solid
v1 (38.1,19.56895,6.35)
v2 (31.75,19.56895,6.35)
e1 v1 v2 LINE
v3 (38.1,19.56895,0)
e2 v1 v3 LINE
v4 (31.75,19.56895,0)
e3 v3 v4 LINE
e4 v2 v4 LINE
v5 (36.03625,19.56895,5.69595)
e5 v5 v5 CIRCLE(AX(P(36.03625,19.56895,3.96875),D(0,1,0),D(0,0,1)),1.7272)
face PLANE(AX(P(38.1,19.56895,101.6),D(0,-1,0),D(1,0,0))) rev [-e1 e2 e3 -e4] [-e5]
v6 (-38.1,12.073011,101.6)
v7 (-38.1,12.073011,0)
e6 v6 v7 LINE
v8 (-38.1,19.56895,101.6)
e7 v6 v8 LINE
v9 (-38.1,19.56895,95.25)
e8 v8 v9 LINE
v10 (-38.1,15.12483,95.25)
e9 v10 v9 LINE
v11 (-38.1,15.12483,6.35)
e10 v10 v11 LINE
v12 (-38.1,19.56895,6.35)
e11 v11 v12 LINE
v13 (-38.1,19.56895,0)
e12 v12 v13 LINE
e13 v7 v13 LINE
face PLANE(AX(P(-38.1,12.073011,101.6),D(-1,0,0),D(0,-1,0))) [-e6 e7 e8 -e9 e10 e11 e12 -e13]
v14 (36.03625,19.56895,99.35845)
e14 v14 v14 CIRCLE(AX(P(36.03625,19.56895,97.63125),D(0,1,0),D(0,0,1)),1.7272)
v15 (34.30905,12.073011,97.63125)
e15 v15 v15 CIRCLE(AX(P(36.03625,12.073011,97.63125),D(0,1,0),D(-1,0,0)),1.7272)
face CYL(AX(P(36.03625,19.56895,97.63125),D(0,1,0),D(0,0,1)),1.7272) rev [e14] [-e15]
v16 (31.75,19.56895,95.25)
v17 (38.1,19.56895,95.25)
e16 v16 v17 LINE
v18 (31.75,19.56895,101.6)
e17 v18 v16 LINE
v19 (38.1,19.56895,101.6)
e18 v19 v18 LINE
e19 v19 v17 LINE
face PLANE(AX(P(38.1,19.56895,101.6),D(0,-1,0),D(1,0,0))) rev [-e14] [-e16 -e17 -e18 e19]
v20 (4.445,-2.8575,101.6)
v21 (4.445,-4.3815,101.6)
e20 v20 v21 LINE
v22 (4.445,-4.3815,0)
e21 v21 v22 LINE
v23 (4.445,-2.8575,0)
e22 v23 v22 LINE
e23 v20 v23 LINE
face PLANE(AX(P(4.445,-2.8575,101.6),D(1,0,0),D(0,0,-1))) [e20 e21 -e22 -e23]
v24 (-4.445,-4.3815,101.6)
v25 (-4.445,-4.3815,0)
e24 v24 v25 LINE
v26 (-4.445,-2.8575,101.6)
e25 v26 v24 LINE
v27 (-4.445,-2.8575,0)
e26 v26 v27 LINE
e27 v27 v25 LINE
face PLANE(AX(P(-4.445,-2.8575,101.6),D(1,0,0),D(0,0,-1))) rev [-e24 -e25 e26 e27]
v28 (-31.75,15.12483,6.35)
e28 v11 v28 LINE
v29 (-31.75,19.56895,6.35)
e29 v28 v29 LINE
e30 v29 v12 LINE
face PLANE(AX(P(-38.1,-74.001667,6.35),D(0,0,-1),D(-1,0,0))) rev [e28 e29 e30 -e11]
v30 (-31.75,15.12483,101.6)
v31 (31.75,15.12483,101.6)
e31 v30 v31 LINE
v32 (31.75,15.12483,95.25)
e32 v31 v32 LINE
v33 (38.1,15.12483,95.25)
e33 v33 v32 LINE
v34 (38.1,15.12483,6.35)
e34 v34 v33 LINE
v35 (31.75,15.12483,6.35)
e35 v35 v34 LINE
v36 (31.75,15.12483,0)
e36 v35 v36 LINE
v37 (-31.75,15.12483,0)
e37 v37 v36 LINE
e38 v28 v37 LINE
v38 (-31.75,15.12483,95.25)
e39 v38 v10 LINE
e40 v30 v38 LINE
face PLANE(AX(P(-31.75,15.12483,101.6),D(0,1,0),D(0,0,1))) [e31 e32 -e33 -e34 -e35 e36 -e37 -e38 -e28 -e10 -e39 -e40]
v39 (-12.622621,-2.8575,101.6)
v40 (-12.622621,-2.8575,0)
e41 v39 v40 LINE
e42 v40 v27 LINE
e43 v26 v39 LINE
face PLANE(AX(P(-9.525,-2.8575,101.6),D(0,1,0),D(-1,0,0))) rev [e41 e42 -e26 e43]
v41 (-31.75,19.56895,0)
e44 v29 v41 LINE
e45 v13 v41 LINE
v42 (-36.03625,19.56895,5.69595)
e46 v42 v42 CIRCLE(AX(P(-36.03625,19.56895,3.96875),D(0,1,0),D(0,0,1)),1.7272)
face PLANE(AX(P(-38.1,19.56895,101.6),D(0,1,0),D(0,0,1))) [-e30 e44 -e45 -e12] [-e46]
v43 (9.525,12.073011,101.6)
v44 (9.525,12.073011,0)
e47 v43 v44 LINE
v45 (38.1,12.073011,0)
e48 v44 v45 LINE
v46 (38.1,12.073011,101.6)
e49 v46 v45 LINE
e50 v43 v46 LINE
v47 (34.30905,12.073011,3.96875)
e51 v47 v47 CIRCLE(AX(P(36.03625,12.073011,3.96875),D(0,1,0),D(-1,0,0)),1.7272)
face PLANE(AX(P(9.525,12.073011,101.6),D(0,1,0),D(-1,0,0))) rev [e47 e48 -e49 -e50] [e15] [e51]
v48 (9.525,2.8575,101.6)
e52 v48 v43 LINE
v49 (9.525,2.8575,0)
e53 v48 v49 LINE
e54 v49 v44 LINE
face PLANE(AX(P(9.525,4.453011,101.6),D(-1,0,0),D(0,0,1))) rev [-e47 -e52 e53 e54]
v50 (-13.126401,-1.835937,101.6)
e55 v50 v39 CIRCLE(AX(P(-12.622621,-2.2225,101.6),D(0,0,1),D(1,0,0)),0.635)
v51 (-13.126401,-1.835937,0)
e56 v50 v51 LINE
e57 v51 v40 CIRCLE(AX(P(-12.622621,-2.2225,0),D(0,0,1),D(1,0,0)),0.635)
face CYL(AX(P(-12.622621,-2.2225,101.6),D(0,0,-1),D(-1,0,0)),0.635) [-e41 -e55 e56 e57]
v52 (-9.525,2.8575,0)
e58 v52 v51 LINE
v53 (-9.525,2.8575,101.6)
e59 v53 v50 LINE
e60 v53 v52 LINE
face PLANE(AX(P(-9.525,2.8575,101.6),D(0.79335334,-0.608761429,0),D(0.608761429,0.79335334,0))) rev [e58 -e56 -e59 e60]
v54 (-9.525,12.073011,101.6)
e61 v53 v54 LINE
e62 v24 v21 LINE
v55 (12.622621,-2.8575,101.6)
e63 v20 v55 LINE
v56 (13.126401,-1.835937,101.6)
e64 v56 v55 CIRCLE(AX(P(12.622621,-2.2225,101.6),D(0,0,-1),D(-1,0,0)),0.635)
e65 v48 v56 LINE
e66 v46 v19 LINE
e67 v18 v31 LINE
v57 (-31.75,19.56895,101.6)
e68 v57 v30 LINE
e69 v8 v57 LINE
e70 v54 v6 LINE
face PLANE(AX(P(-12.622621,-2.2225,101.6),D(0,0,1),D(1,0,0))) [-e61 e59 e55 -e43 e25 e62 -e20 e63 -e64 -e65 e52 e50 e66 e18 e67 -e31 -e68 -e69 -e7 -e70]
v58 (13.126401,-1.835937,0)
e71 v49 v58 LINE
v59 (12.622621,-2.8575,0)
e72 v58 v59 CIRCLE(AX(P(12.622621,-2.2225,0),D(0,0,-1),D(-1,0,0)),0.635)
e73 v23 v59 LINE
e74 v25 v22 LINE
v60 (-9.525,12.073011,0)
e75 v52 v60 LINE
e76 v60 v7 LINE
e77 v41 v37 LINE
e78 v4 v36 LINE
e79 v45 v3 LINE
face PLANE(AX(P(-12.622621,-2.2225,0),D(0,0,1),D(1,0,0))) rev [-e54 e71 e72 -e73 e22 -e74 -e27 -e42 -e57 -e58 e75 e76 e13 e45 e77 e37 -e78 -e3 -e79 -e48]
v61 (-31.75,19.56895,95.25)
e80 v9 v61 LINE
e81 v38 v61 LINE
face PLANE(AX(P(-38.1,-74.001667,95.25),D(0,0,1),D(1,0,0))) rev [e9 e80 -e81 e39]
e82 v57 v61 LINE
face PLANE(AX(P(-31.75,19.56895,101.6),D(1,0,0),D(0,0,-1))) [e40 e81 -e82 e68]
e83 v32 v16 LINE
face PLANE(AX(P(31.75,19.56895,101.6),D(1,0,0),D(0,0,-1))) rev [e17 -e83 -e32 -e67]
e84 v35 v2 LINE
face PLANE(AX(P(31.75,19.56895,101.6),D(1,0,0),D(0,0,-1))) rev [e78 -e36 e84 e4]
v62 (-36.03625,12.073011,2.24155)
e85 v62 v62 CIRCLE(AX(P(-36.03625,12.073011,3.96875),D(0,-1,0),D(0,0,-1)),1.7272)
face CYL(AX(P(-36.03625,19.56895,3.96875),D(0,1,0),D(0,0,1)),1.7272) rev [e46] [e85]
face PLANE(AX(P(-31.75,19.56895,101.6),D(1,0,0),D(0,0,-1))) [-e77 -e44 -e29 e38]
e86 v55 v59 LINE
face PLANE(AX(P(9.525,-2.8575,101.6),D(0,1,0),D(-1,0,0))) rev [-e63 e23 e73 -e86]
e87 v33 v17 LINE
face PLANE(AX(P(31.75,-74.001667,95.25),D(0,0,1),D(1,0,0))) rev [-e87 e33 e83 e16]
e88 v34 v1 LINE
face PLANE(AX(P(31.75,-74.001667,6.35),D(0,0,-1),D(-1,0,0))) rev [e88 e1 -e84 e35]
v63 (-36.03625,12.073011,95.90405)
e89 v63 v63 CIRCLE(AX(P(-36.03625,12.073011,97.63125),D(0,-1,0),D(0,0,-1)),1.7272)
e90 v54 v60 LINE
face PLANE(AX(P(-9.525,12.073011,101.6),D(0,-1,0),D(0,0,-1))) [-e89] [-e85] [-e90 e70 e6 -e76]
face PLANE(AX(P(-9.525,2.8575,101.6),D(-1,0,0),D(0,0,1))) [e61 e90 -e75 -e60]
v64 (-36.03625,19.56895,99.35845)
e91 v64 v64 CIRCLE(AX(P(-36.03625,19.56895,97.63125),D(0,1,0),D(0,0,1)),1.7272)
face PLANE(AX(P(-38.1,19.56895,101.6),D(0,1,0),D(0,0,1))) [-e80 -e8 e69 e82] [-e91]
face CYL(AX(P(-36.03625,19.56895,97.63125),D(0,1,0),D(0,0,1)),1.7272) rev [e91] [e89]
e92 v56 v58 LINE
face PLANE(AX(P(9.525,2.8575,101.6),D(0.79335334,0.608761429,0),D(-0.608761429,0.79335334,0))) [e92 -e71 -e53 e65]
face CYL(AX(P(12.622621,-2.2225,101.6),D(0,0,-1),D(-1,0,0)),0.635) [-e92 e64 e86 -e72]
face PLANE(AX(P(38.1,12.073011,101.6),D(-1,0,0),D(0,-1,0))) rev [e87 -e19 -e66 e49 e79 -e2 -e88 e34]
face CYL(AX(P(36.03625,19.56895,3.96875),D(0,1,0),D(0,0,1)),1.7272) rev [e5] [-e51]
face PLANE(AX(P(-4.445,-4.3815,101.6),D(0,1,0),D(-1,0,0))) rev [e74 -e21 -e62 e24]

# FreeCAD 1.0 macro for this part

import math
import FreeCAD as App
import Part
import Sketcher
from FreeCAD import Vector
Q = App.Units.Quantity

doc = App.newDocument("Part")
params = doc.addObject("Spreadsheet::Sheet", "Params")
for row, (alias, value) in enumerate([
    ("sketch1_width", "2.5 in"),
    ("sketch1_radius", "0.025 in"),
    ("sketch1_width2", "0.35 in"),
    ("sketch1_width3", "0.25 in"),
    ("sketch1_height", "0.06 in"),
    ("pad1_length", "4 in"),
    ("sketch2_height", "3.5 in"),
    ("sketch2_width", "0.25 in"),
    ("pocket1_length", "4.44412 mm"),
    ("sketch3_height", "3.5 in"),
    ("sketch3_width", "0.25 in"),
    ("pocket2_length", "4.44412 mm"),
    ("sketch4_diameter", "0.136 in"),
    ("hole_diameter", "0.136 in"),
    ("sketch5_diameter", "0.136 in"),
    ("hole2_diameter", "0.136 in"),
    ("sketch6_diameter", "0.136 in"),
    ("hole3_diameter", "0.136 in"),
    ("sketch7_diameter", "0.136 in"),
    ("hole4_diameter", "0.136 in"),
], start=1):
    params.set(f"A{row}", alias)
    params.set(f"B{row}", "=" + value)
    params.setAlias(f"B{row}", alias)

body = doc.addObject("PartDesign::Body", "Body")

# Sketch on XY plane
sketch1 = body.newObject("Sketcher::SketchObject", "Sketch")
sketch1.AttachmentSupport = (doc.getObject("XY_Plane"), [""])
sketch1.MapMode = "FlatFace"
sketch1.addGeometry(Part.LineSegment(Vector(-9.525, 12.073011, 0), Vector(-9.525, 2.8575, 0)), False)
sketch1.addGeometry(Part.LineSegment(Vector(-9.525, 2.8575, 0), Vector(-13.126401, -1.835937, 0)), False)
sketch1.addGeometry(Part.ArcOfCircle(Part.Circle(Vector(-12.622621, -2.2225, 0), Vector(0, 0, 1), 0.635), math.radians(142.500004), math.radians(269.999994)), False)
sketch1.addGeometry(Part.LineSegment(Vector(-12.622621, -2.8575, 0), Vector(-4.445, -2.8575, 0)), False)
sketch1.addGeometry(Part.LineSegment(Vector(-4.445, -2.8575, 0), Vector(-4.445, -4.3815, 0)), False)
sketch1.addGeometry(Part.LineSegment(Vector(-4.445, -4.3815, 0), Vector(4.445, -4.3815, 0)), False)
sketch1.addGeometry(Part.LineSegment(Vector(4.445, -4.3815, 0), Vector(4.445, -2.8575, 0)), False)
sketch1.addGeometry(Part.LineSegment(Vector(4.445, -2.8575, 0), Vector(12.622621, -2.8575, 0)), False)
sketch1.addGeometry(Part.ArcOfCircle(Part.Circle(Vector(12.622621, -2.2225, 0), Vector(0, 0, 1), 0.635), math.radians(-89.999994), math.radians(37.499996)), False)
sketch1.addGeometry(Part.LineSegment(Vector(13.126401, -1.835937, 0), Vector(9.525, 2.8575, 0)), False)
sketch1.addGeometry(Part.LineSegment(Vector(9.525, 2.8575, 0), Vector(9.525, 12.073011, 0)), False)
sketch1.addGeometry(Part.LineSegment(Vector(9.525, 12.073011, 0), Vector(38.1, 12.073011, 0)), False)
sketch1.addGeometry(Part.LineSegment(Vector(38.1, 12.073011, 0), Vector(38.1, 19.56895, 0)), False)
sketch1.addGeometry(Part.LineSegment(Vector(38.1, 19.56895, 0), Vector(31.75, 19.56895, 0)), False)
sketch1.addGeometry(Part.LineSegment(Vector(31.75, 19.56895, 0), Vector(31.75, 15.12483, 0)), False)
sketch1.addGeometry(Part.LineSegment(Vector(31.75, 15.12483, 0), Vector(-31.75, 15.12483, 0)), False)
sketch1.addGeometry(Part.LineSegment(Vector(-31.75, 15.12483, 0), Vector(-31.75, 19.56895, 0)), False)
sketch1.addGeometry(Part.LineSegment(Vector(-31.75, 19.56895, 0), Vector(-38.1, 19.56895, 0)), False)
sketch1.addGeometry(Part.LineSegment(Vector(-38.1, 19.56895, 0), Vector(-38.1, 12.073011, 0)), False)
sketch1.addGeometry(Part.LineSegment(Vector(-38.1, 12.073011, 0), Vector(-9.525, 12.073011, 0)), False)
sketch1.addConstraint(Sketcher.Constraint("Coincident", 0, 2, 1, 1))
sketch1.addConstraint(Sketcher.Constraint("Tangent", 1, 2, 2, 1))
sketch1.addConstraint(Sketcher.Constraint("Tangent", 2, 2, 3, 1))
sketch1.addConstraint(Sketcher.Constraint("Coincident", 3, 2, 4, 1))
sketch1.addConstraint(Sketcher.Constraint("Coincident", 4, 2, 5, 1))
sketch1.addConstraint(Sketcher.Constraint("Coincident", 5, 2, 6, 1))
sketch1.addConstraint(Sketcher.Constraint("Coincident", 6, 2, 7, 1))
sketch1.addConstraint(Sketcher.Constraint("Tangent", 7, 2, 8, 1))
sketch1.addConstraint(Sketcher.Constraint("Tangent", 8, 2, 9, 1))
sketch1.addConstraint(Sketcher.Constraint("Coincident", 9, 2, 10, 1))
sketch1.addConstraint(Sketcher.Constraint("Coincident", 10, 2, 11, 1))
sketch1.addConstraint(Sketcher.Constraint("Coincident", 11, 2, 12, 1))
sketch1.addConstraint(Sketcher.Constraint("Coincident", 12, 2, 13, 1))
sketch1.addConstraint(Sketcher.Constraint("Coincident", 13, 2, 14, 1))
sketch1.addConstraint(Sketcher.Constraint("Coincident", 14, 2, 15, 1))
sketch1.addConstraint(Sketcher.Constraint("Coincident", 15, 2, 16, 1))
sketch1.addConstraint(Sketcher.Constraint("Coincident", 16, 2, 17, 1))
sketch1.addConstraint(Sketcher.Constraint("Coincident", 17, 2, 18, 1))
sketch1.addConstraint(Sketcher.Constraint("Coincident", 18, 2, 19, 1))
sketch1.addConstraint(Sketcher.Constraint("Coincident", 19, 2, 0, 1))
sketch1.addConstraint(Sketcher.Constraint("Vertical", 0))
sketch1.addConstraint(Sketcher.Constraint("Horizontal", 3))
sketch1.addConstraint(Sketcher.Constraint("Vertical", 4))
sketch1.addConstraint(Sketcher.Constraint("Horizontal", 5))
sketch1.addConstraint(Sketcher.Constraint("Vertical", 6))
sketch1.addConstraint(Sketcher.Constraint("Horizontal", 7))
sketch1.addConstraint(Sketcher.Constraint("Vertical", 10))
sketch1.addConstraint(Sketcher.Constraint("Horizontal", 11))
sketch1.addConstraint(Sketcher.Constraint("Vertical", 12))
sketch1.addConstraint(Sketcher.Constraint("Horizontal", 13))
sketch1.addConstraint(Sketcher.Constraint("Vertical", 14))
sketch1.addConstraint(Sketcher.Constraint("Horizontal", 15))
sketch1.addConstraint(Sketcher.Constraint("Vertical", 16))
sketch1.addConstraint(Sketcher.Constraint("Horizontal", 17))
sketch1.addConstraint(Sketcher.Constraint("Vertical", 18))
sketch1.addConstraint(Sketcher.Constraint("Horizontal", 19))
sketch1.addConstraint(Sketcher.Constraint("Equal", 2, 8))
sketch1.addConstraint(Sketcher.Constraint("Symmetric", 2, 3, 8, 3, -2))
sketch1.addConstraint(Sketcher.Constraint("Symmetric", 0, 2, 9, 2, -2))
sketch1.addConstraint(Sketcher.Constraint("Symmetric", 13, 2, 16, 2, -2))
sketch1.addConstraint(Sketcher.Constraint("Symmetric", 11, 2, 18, 2, -2))
sketch1.addConstraint(Sketcher.Constraint("Equal", 3, 7))
sketch1.addConstraint(Sketcher.Constraint("DistanceX", 15, 2, 15, 1, Q("2.5 in")))
sketch1.addConstraint(Sketcher.Constraint("Radius", 2, Q("0.025 in")))
sketch1.addConstraint(Sketcher.Constraint("DistanceX", 5, 1, 5, 2, Q("0.35 in")))
sketch1.addConstraint(Sketcher.Constraint("DistanceX", 13, 2, 13, 1, Q("0.25 in")))
sketch1.addConstraint(Sketcher.Constraint("DistanceY", 4, 2, 4, 1, Q("0.06 in")))
sketch1.addConstraint(Sketcher.Constraint("Angle", 1, Q("-127.5 deg")))
sketch1.addConstraint(Sketcher.Constraint("DistanceY", 2, 3, 0, 2, Q("0.2 in")))
sketch1.addConstraint(Sketcher.Constraint("DistanceX", 0, 2, 3, 2, Q("0.2 in")))
sketch1.addConstraint(Sketcher.Constraint("DistanceY", 2, 3, -1, 1, Q("0.0875 in")))
sketch1.addConstraint(Sketcher.Constraint("DistanceY", 0, 2, 0, 1, 9.215511))
sketch1.addConstraint(Sketcher.Constraint("DistanceY", 12, 1, 12, 2, 7.495939))
sketch1.addConstraint(Sketcher.Constraint("DistanceY", 14, 2, 14, 1, 4.44412))
sketch1.setExpression("Constraints[42]", "Params.sketch1_width")
sketch1.setExpression("Constraints[43]", "Params.sketch1_radius")
sketch1.setExpression("Constraints[44]", "Params.sketch1_width2")
sketch1.setExpression("Constraints[45]", "Params.sketch1_width3")
sketch1.setExpression("Constraints[46]", "Params.sketch1_height")
pad1 = body.newObject("PartDesign::Pad", "Pad")
pad1.Profile = sketch1
pad1.setExpression("Length", "Params.pad1_length")

# Sketch on XZ plane
sketch2 = body.newObject("Sketcher::SketchObject", "Sketch001")
sketch2.AttachmentSupport = (doc.getObject("XZ_Plane"), [""])
sketch2.MapMode = "FlatFace"
sketch2.AttachmentOffset = App.Placement(Vector(0, 0, -19.56895), App.Rotation())
sketch2.addGeometry(Part.LineSegment(Vector(-38.1, 6.35, 0), Vector(-38.1, 95.25, 0)), False)
sketch2.addGeometry(Part.LineSegment(Vector(-38.1, 95.25, 0), Vector(-31.75, 95.25, 0)), False)
sketch2.addGeometry(Part.LineSegment(Vector(-31.75, 95.25, 0), Vector(-31.75, 6.35, 0)), False)
sketch2.addGeometry(Part.LineSegment(Vector(-31.75, 6.35, 0), Vector(-38.1, 6.35, 0)), False)
sketch2.addConstraint(Sketcher.Constraint("Coincident", 0, 2, 1, 1))
sketch2.addConstraint(Sketcher.Constraint("Coincident", 1, 2, 2, 1))
sketch2.addConstraint(Sketcher.Constraint("Coincident", 2, 2, 3, 1))
sketch2.addConstraint(Sketcher.Constraint("Coincident", 3, 2, 0, 1))
sketch2.addConstraint(Sketcher.Constraint("Vertical", 0))
sketch2.addConstraint(Sketcher.Constraint("Horizontal", 1))
sketch2.addConstraint(Sketcher.Constraint("Vertical", 2))
sketch2.addConstraint(Sketcher.Constraint("Horizontal", 3))
sketch2.addConstraint(Sketcher.Constraint("DistanceY", 0, 1, 0, 2, Q("3.5 in")))
sketch2.addConstraint(Sketcher.Constraint("DistanceX", 1, 1, 1, 2, Q("0.25 in")))
sketch2.addConstraint(Sketcher.Constraint("DistanceX", 0, 2, -1, 1, Q("1.5 in")))
sketch2.addConstraint(Sketcher.Constraint("DistanceY", -1, 1, 0, 2, Q("3.75 in")))
sketch2.setExpression("Constraints[8]", "Params.sketch2_height")
sketch2.setExpression("Constraints[9]", "Params.sketch2_width")
pocket1 = body.newObject("PartDesign::Pocket", "Pocket")
pocket1.Profile = sketch2
pocket1.setExpression("Length", "Params.pocket1_length")
pocket1.Reversed = True

# Sketch on XZ plane
sketch3 = body.newObject("Sketcher::SketchObject", "Sketch002")
sketch3.AttachmentSupport = (doc.getObject("XZ_Plane"), [""])
sketch3.MapMode = "FlatFace"
sketch3.AttachmentOffset = App.Placement(Vector(0, 0, -19.56895), App.Rotation())
sketch3.addGeometry(Part.LineSegment(Vector(31.75, 6.35, 0), Vector(31.75, 95.25, 0)), False)
sketch3.addGeometry(Part.LineSegment(Vector(31.75, 95.25, 0), Vector(38.1, 95.25, 0)), False)
sketch3.addGeometry(Part.LineSegment(Vector(38.1, 95.25, 0), Vector(38.1, 6.35, 0)), False)
sketch3.addGeometry(Part.LineSegment(Vector(38.1, 6.35, 0), Vector(31.75, 6.35, 0)), False)
sketch3.addConstraint(Sketcher.Constraint("Coincident", 0, 2, 1, 1))
sketch3.addConstraint(Sketcher.Constraint("Coincident", 1, 2, 2, 1))
sketch3.addConstraint(Sketcher.Constraint("Coincident", 2, 2, 3, 1))
sketch3.addConstraint(Sketcher.Constraint("Coincident", 3, 2, 0, 1))
sketch3.addConstraint(Sketcher.Constraint("Vertical", 0))
sketch3.addConstraint(Sketcher.Constraint("Horizontal", 1))
sketch3.addConstraint(Sketcher.Constraint("Vertical", 2))
sketch3.addConstraint(Sketcher.Constraint("Horizontal", 3))
sketch3.addConstraint(Sketcher.Constraint("DistanceY", 0, 1, 0, 2, Q("3.5 in")))
sketch3.addConstraint(Sketcher.Constraint("DistanceX", 1, 1, 1, 2, Q("0.25 in")))
sketch3.addConstraint(Sketcher.Constraint("DistanceX", -1, 1, 1, 2, Q("1.5 in")))
sketch3.addConstraint(Sketcher.Constraint("DistanceY", -1, 1, 0, 2, Q("3.75 in")))
sketch3.setExpression("Constraints[8]", "Params.sketch3_height")
sketch3.setExpression("Constraints[9]", "Params.sketch3_width")
pocket2 = body.newObject("PartDesign::Pocket", "Pocket001")
pocket2.Profile = sketch3
pocket2.setExpression("Length", "Params.pocket2_length")
pocket2.Reversed = True

# Sketch on XZ plane
sketch4 = body.newObject("Sketcher::SketchObject", "Sketch003")
sketch4.AttachmentSupport = (doc.getObject("XZ_Plane"), [""])
sketch4.MapMode = "FlatFace"
sketch4.AttachmentOffset = App.Placement(Vector(0, 0, -19.56895), App.Rotation())
sketch4.addGeometry(Part.Circle(Vector(-36.03625, 3.96875, 0), Vector(0, 0, 1), 1.7272), False)
sketch4.addConstraint(Sketcher.Constraint("Diameter", 0, Q("0.136 in")))
sketch4.addConstraint(Sketcher.Constraint("DistanceY", -1, 1, 0, 3, Q("0.15625 in")))
sketch4.addConstraint(Sketcher.Constraint("DistanceX", 0, 3, -1, 1, 36.03625))
sketch4.setExpression("Constraints[0]", "Params.sketch4_diameter")
doc.recompute()
hole = body.newObject("PartDesign::Hole", "Hole")
hole.Profile = sketch4
hole.ThreadType = "None"
hole.setExpression("Diameter", "Params.hole_diameter")
hole.DepthType = "ThroughAll"
hole.Reversed = True

# Sketch on XZ plane
sketch5 = body.newObject("Sketcher::SketchObject", "Sketch004")
sketch5.AttachmentSupport = (doc.getObject("XZ_Plane"), [""])
sketch5.MapMode = "FlatFace"
sketch5.AttachmentOffset = App.Placement(Vector(0, 0, -19.56895), App.Rotation())
sketch5.addGeometry(Part.Circle(Vector(36.03625, 3.96875, 0), Vector(0, 0, 1), 1.7272), False)
sketch5.addConstraint(Sketcher.Constraint("Diameter", 0, Q("0.136 in")))
sketch5.addConstraint(Sketcher.Constraint("DistanceY", -1, 1, 0, 3, Q("0.15625 in")))
sketch5.addConstraint(Sketcher.Constraint("DistanceX", -1, 1, 0, 3, 36.03625))
sketch5.setExpression("Constraints[0]", "Params.sketch5_diameter")
doc.recompute()
hole2 = body.newObject("PartDesign::Hole", "Hole001")
hole2.Profile = sketch5
hole2.ThreadType = "None"
hole2.setExpression("Diameter", "Params.hole2_diameter")
hole2.DepthType = "ThroughAll"
hole2.Reversed = True

# Sketch on XZ plane
sketch6 = body.newObject("Sketcher::SketchObject", "Sketch005")
sketch6.AttachmentSupport = (doc.getObject("XZ_Plane"), [""])
sketch6.MapMode = "FlatFace"
sketch6.AttachmentOffset = App.Placement(Vector(0, 0, -19.56895), App.Rotation())
sketch6.addGeometry(Part.Circle(Vector(-36.03625, 97.63125, 0), Vector(0, 0, 1), 1.7272), False)
sketch6.addConstraint(Sketcher.Constraint("Diameter", 0, Q("0.136 in")))
sketch6.addConstraint(Sketcher.Constraint("DistanceY", -1, 1, 0, 3, Q("3.84375 in")))
sketch6.addConstraint(Sketcher.Constraint("DistanceX", 0, 3, -1, 1, 36.03625))
sketch6.setExpression("Constraints[0]", "Params.sketch6_diameter")
doc.recompute()
hole3 = body.newObject("PartDesign::Hole", "Hole002")
hole3.Profile = sketch6
hole3.ThreadType = "None"
hole3.setExpression("Diameter", "Params.hole3_diameter")
hole3.DepthType = "ThroughAll"
hole3.Reversed = True

# Sketch on XZ plane
sketch7 = body.newObject("Sketcher::SketchObject", "Sketch006")
sketch7.AttachmentSupport = (doc.getObject("XZ_Plane"), [""])
sketch7.MapMode = "FlatFace"
sketch7.AttachmentOffset = App.Placement(Vector(0, 0, -19.56895), App.Rotation())
sketch7.addGeometry(Part.Circle(Vector(36.03625, 97.63125, 0), Vector(0, 0, 1), 1.7272), False)
sketch7.addConstraint(Sketcher.Constraint("Diameter", 0, Q("0.136 in")))
sketch7.addConstraint(Sketcher.Constraint("DistanceY", -1, 1, 0, 3, Q("3.84375 in")))
sketch7.addConstraint(Sketcher.Constraint("DistanceX", -1, 1, 0, 3, 36.03625))
sketch7.setExpression("Constraints[0]", "Params.sketch7_diameter")
doc.recompute()
hole4 = body.newObject("PartDesign::Hole", "Hole003")
hole4.Profile = sketch7
hole4.ThreadType = "None"
hole4.setExpression("Diameter", "Params.hole4_diameter")
hole4.DepthType = "ThroughAll"
hole4.Reversed = True

doc.recompute()
